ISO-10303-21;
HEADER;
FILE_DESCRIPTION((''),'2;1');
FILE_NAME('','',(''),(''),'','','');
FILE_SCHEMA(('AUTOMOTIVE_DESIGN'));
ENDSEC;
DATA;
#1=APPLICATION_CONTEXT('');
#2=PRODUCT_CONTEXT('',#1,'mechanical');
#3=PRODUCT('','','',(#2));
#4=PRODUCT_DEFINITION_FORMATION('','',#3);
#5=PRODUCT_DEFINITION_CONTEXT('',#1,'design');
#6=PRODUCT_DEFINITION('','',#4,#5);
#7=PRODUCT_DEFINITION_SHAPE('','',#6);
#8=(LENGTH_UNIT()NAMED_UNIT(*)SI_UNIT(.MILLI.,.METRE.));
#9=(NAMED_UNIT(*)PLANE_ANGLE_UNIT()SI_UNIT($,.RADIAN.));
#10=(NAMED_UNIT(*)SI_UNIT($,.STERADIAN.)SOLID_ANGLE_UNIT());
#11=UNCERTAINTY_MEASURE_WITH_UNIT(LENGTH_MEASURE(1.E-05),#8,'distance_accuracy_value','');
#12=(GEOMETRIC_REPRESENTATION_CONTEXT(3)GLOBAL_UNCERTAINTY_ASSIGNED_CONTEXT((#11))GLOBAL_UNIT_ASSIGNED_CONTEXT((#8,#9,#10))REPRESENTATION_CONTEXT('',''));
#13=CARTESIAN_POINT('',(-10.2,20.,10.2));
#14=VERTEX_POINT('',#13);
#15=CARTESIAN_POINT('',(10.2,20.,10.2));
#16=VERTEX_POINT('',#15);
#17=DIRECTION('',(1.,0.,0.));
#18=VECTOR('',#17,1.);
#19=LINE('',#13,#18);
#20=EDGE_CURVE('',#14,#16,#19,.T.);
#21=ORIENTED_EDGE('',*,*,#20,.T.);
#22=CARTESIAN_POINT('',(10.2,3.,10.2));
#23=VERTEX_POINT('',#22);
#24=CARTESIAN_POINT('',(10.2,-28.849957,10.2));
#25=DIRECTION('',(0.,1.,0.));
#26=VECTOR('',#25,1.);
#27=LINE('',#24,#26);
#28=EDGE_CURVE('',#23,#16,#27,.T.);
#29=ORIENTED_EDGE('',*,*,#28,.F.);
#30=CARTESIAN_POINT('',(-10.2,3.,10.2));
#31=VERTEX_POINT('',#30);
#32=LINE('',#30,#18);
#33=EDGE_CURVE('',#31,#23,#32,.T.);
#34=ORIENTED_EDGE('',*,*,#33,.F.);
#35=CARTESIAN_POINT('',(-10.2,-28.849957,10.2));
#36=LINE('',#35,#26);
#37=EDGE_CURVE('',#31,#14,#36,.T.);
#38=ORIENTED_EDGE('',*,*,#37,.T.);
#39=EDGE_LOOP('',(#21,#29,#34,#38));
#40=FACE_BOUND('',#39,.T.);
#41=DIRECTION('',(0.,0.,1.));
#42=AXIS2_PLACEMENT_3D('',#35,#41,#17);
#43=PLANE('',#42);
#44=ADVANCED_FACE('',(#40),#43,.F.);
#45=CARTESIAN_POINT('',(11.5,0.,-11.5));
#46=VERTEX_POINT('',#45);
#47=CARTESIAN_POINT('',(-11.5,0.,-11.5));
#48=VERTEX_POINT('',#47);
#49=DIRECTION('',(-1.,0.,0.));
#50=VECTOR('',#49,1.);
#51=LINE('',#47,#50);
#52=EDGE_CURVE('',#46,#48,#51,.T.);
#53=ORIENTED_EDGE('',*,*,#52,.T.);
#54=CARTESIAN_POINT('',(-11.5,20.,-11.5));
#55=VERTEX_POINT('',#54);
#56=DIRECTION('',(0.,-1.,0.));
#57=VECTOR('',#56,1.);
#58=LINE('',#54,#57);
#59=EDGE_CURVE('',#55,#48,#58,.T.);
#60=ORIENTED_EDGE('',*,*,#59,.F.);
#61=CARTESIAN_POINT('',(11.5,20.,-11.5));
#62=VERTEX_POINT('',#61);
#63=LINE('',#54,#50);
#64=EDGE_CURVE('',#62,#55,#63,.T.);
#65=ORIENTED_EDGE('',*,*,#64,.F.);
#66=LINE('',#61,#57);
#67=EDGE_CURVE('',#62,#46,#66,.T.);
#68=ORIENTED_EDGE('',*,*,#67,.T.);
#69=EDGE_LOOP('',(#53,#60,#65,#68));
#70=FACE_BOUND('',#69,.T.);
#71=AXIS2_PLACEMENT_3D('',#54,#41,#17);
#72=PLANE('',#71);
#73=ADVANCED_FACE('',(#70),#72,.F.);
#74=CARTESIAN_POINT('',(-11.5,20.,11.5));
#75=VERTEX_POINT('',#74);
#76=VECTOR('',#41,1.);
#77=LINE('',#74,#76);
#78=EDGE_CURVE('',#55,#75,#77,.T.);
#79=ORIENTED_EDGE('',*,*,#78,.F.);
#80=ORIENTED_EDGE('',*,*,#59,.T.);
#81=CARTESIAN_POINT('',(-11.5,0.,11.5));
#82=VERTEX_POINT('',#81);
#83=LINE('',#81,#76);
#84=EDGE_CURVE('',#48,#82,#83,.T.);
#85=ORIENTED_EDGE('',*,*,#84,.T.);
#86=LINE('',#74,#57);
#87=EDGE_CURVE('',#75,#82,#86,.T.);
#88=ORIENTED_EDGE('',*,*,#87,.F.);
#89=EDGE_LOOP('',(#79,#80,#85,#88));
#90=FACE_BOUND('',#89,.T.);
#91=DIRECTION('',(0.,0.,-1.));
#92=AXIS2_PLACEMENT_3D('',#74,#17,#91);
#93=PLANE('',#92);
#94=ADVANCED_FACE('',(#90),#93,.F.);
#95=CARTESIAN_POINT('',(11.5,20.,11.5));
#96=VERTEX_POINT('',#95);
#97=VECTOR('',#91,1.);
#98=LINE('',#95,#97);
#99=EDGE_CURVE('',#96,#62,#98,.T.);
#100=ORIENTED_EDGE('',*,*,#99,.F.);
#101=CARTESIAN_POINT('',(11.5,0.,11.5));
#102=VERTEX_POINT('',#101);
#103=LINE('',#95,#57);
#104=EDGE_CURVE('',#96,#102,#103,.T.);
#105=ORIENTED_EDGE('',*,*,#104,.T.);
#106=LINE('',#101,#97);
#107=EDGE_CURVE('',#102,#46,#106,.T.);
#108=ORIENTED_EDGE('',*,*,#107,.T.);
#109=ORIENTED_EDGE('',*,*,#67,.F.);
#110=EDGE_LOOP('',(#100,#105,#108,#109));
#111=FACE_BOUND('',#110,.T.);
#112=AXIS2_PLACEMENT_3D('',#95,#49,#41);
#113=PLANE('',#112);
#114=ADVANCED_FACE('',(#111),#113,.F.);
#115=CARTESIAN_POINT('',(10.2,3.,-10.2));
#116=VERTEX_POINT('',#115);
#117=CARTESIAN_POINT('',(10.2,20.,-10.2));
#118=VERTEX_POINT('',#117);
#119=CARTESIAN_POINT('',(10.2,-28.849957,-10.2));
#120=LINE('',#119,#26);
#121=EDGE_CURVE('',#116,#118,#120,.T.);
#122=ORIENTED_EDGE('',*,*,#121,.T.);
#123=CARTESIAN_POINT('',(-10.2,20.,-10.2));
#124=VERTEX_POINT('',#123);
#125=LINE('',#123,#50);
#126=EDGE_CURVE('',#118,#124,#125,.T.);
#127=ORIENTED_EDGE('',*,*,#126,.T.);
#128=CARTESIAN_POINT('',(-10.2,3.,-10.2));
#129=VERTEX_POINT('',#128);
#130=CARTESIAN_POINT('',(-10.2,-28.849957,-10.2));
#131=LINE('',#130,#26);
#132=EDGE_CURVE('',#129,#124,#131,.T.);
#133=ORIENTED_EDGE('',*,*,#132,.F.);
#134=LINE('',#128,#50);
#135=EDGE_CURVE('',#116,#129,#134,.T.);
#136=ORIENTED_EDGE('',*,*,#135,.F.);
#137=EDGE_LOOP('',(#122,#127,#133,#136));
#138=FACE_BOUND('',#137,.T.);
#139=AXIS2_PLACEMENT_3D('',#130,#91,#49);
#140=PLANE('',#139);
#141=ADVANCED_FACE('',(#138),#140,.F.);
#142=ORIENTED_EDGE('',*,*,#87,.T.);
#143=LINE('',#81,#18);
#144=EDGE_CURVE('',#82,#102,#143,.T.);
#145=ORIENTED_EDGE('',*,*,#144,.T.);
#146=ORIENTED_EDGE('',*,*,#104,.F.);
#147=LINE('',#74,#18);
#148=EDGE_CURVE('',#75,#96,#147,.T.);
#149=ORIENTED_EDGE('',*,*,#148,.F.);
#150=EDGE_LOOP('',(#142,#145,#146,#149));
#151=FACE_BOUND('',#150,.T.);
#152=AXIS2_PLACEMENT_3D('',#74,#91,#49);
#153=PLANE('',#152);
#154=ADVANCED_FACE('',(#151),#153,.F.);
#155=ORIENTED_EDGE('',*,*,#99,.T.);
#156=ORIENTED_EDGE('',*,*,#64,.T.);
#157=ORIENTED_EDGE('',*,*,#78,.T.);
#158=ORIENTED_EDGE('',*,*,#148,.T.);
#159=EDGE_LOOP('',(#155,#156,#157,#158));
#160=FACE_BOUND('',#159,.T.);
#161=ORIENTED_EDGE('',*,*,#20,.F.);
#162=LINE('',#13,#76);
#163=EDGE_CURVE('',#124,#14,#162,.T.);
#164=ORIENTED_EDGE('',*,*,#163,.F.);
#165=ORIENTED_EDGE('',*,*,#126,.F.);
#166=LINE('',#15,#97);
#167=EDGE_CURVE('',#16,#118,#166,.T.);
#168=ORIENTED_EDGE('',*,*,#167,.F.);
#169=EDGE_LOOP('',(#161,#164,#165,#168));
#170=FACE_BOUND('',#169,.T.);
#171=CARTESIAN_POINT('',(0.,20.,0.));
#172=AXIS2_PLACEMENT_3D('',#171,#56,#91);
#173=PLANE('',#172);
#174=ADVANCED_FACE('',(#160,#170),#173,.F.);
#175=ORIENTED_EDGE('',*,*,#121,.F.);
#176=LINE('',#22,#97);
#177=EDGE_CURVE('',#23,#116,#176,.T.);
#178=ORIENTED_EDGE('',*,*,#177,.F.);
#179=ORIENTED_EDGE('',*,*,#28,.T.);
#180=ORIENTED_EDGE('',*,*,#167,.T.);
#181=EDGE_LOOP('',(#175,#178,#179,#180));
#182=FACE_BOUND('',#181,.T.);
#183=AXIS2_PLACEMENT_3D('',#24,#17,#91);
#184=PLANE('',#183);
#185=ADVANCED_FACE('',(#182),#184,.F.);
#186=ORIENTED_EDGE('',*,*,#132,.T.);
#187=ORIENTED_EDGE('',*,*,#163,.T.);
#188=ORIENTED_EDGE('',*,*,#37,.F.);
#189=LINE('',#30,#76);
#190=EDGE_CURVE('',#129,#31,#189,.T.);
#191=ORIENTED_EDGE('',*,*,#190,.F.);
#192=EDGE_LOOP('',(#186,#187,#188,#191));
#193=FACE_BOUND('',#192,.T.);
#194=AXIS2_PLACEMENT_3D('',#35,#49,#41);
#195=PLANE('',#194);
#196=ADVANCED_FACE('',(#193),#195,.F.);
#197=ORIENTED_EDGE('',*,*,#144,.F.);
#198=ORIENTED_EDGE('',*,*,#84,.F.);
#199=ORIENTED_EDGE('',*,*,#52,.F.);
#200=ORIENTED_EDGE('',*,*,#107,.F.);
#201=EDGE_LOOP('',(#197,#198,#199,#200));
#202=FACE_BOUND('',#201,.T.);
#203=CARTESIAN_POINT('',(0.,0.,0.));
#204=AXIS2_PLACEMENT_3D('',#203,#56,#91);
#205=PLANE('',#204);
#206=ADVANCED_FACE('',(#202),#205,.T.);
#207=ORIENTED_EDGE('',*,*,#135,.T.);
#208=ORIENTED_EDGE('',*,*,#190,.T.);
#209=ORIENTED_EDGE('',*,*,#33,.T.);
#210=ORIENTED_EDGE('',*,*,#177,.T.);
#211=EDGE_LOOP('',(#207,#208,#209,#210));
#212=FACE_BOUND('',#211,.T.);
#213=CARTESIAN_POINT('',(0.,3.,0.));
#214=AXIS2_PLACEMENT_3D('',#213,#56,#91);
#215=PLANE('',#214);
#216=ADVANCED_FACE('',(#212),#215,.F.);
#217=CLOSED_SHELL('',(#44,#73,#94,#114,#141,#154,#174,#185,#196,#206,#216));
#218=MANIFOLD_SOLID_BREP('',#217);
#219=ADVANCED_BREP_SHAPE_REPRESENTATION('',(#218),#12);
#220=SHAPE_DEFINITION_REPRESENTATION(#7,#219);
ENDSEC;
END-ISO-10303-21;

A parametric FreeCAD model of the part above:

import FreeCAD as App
import Part
import Sketcher

V = App.Vector
Q = App.Units.Quantity


def add_polygon(sketch, points):
    """Adds a closed chain of lines whose ends are joined by coincident constraints."""
    first, n = sketch.GeometryCount, len(points)
    for a, b in zip(points, points[1:] + points[:1]):
        sketch.addGeometry(Part.LineSegment(App.Vector(*a, 0), App.Vector(*b, 0)), False)
    for i in range(n):
        sketch.addConstraint(Sketcher.Constraint("Coincident", first + i, 2, first + (i + 1) % n, 1))

doc = App.newDocument("Part")
body = doc.addObject("PartDesign::Body", "Body")

sketch1 = body.newObject("Sketcher::SketchObject", "Sketch")
sketch1.AttachmentSupport = (doc.getObject("XZ_Plane"), [""])
sketch1.MapMode = "FlatFace"
add_polygon(sketch1, [(-12, -12), (-12, 12), (12, 12), (12, -12)])
sketch1.addConstraint([
    Sketcher.Constraint("Vertical", 0),
    Sketcher.Constraint("Horizontal", 1),
    Sketcher.Constraint("Vertical", 2),
    Sketcher.Constraint("Horizontal", 3),
    Sketcher.Constraint("Symmetric", 0, 2, 2, 2, -1, 1),
    Sketcher.Constraint("Equal", 3, 0),
    Sketcher.Constraint("DistanceX", 1, 1, 1, 2, Q("23 mm")),
])
pad1 = body.newObject("PartDesign::Pad", "Pad")
pad1.Profile = sketch1
pad1.Length = 20
pad1.Reversed = True

sketch2 = body.newObject("Sketcher::SketchObject", "Sketch001")
sketch2.AttachmentSupport = (doc.getObject("XZ_Plane"), [""])
sketch2.MapMode = "FlatFace"
sketch2.AttachmentOffset = App.Placement(V(0, 0, -20), App.Rotation())
add_polygon(sketch2, [(-10, -10), (-10, 10), (10, 10), (10, -10)])
sketch2.addConstraint([
    Sketcher.Constraint("Vertical", 0),
    Sketcher.Constraint("Horizontal", 1),
    Sketcher.Constraint("Vertical", 2),
    Sketcher.Constraint("Horizontal", 3),
    Sketcher.Constraint("Symmetric", 0, 2, 2, 2, -1, 1),
    Sketcher.Constraint("Equal", 3, 0),
    Sketcher.Constraint("DistanceX", 1, 1, 1, 2, Q("20.4 mm")),
])
pocket1 = body.newObject("PartDesign::Pocket", "Pocket")
pocket1.Profile = sketch2
pocket1.Length = 17
pocket1.Reversed = True

doc.recompute()
